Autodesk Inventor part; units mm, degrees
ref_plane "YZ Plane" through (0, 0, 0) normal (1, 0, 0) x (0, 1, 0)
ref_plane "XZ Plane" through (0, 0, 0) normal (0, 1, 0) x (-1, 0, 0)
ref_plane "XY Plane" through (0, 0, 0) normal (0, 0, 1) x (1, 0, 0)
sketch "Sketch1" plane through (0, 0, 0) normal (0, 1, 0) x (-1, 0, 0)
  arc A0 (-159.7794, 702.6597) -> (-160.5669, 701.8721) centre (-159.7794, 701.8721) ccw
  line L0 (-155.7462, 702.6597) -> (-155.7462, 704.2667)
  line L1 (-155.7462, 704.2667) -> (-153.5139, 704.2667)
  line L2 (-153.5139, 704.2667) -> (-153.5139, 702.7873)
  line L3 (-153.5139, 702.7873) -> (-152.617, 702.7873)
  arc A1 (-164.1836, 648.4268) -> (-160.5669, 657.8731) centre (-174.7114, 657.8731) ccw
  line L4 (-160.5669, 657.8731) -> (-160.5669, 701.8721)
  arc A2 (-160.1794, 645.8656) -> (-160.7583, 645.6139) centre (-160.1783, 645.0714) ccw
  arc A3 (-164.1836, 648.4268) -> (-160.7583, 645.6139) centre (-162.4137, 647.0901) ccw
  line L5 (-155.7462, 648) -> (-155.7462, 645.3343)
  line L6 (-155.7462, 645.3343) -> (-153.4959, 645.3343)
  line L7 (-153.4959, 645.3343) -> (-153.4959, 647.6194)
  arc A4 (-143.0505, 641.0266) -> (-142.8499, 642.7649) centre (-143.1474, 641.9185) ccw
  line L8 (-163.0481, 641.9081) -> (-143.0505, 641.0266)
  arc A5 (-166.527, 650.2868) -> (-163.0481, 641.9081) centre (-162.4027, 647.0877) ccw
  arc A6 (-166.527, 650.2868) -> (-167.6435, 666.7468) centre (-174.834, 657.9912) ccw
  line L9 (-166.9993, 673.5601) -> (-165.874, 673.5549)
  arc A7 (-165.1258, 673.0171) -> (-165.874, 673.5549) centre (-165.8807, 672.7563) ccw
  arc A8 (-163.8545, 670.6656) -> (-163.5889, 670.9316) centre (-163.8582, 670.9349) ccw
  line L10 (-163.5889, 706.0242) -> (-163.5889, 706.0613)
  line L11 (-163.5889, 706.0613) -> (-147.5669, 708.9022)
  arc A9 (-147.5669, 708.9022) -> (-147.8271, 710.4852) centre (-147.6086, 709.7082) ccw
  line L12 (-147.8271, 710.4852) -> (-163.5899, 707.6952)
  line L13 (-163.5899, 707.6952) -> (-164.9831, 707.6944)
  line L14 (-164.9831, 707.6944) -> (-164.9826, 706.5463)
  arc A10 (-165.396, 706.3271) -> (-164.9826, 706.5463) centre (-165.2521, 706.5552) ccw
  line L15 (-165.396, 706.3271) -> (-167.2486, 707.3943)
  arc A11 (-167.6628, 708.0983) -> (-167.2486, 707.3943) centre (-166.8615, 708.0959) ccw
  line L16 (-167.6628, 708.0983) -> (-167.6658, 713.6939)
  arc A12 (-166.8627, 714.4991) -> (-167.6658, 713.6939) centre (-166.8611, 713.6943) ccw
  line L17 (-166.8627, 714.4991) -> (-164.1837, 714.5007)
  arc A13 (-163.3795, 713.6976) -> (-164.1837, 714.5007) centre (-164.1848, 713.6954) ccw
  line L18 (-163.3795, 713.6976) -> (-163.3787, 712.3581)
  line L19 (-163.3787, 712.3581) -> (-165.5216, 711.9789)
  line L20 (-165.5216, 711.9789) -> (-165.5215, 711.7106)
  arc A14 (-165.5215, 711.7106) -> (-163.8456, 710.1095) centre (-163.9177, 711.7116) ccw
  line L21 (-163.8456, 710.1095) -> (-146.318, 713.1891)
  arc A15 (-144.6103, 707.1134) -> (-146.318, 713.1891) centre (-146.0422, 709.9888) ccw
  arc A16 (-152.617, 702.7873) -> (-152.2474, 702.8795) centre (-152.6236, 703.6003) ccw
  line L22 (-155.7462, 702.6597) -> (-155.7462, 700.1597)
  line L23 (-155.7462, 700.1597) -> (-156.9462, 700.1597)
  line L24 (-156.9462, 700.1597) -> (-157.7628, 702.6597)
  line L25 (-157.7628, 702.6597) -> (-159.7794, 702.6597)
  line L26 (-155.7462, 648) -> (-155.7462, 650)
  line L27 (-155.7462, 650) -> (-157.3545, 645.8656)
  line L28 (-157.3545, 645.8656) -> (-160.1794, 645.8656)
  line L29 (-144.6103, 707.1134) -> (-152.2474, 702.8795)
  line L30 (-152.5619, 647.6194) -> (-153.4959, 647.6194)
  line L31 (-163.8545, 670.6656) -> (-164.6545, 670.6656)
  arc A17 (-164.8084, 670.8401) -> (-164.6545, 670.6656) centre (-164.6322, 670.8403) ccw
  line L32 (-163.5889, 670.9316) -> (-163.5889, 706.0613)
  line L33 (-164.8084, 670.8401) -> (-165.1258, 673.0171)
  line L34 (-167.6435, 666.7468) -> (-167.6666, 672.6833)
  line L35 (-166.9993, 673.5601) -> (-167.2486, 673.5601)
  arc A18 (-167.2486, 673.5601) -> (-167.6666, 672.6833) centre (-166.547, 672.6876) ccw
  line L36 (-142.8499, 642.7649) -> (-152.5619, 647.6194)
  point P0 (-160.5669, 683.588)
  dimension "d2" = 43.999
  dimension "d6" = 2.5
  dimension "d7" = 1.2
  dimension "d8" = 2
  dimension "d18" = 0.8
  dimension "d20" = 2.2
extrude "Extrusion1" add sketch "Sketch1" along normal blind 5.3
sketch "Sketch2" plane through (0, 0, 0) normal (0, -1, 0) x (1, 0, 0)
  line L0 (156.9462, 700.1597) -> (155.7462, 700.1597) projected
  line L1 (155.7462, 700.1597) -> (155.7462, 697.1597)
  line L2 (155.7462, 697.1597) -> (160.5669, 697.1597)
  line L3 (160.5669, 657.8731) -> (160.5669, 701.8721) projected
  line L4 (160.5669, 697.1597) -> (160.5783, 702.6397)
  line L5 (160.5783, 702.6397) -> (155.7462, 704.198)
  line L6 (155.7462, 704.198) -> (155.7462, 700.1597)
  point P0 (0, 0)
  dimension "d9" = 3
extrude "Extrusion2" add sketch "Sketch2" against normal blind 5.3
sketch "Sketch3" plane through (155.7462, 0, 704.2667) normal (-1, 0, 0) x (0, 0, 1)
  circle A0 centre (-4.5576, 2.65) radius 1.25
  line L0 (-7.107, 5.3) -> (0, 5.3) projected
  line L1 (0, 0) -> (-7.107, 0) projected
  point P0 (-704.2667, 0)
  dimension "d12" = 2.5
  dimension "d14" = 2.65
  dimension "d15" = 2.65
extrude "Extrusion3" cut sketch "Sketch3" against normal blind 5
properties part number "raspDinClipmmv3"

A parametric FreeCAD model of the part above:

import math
import FreeCAD as App
import Part
import Sketcher
Q = App.Units.Quantity

doc = App.newDocument("Part")
body = doc.addObject("PartDesign::Body", "Body")

sketch1 = body.newObject("Sketcher::SketchObject", "Sketch")
sketch1.AttachmentSupport = (doc.getObject("XZ_Plane"), [""])
sketch1.MapMode = "FlatFace"
sketch1.addGeometry([
    Part.ArcOfCircle(Part.Circle(App.Vector(159.7794, 701.8721, 0), App.Vector(0, 0, 1), 0.7876), math.radians(0), math.radians(90)),
    Part.LineSegment(App.Vector(159.7794, 702.6597, 0), App.Vector(157.7628, 702.6597, 0)),
    Part.LineSegment(App.Vector(157.7628, 702.6597, 0), App.Vector(156.9462, 700.1597, 0)),
    Part.LineSegment(App.Vector(156.9462, 700.1597, 0), App.Vector(155.7462, 700.1597, 0)),
    Part.LineSegment(App.Vector(155.7462, 700.1597, 0), App.Vector(155.7462, 704.2667, 0)),
    Part.LineSegment(App.Vector(155.7462, 704.2667, 0), App.Vector(153.5139, 704.2667, 0)),
    Part.LineSegment(App.Vector(153.5139, 704.2667, 0), App.Vector(153.5139, 702.7873, 0)),
    Part.LineSegment(App.Vector(153.5139, 702.7873, 0), App.Vector(152.617, 702.7873, 0)),
    Part.ArcOfCircle(Part.Circle(App.Vector(152.6236, 703.6003, 0), App.Vector(0, 0, 1), 0.813027), math.radians(-117.560961), math.radians(-90.465122)),
    Part.LineSegment(App.Vector(152.2474, 702.8795, 0), App.Vector(144.6103, 707.1134, 0)),
    Part.ArcOfCircle(Part.Circle(App.Vector(146.0422, 709.9888, 0), App.Vector(0, 0, 1), 3.212205), math.radians(85.074453), math.radians(243.527481)),
    Part.LineSegment(App.Vector(146.318, 713.1891, 0), App.Vector(163.8456, 710.1095, 0)),
    Part.ArcOfCircle(Part.Circle(App.Vector(163.9177, 711.7116, 0), App.Vector(0, 0, 1), 1.6038), math.radians(-92.576768), math.radians(-0.035725)),
    Part.LineSegment(App.Vector(165.5215, 711.7106, 0), App.Vector(165.5216, 711.9789, 0)),
    Part.LineSegment(App.Vector(165.5216, 711.9789, 0), App.Vector(163.3787, 712.3581, 0)),
    Part.LineSegment(App.Vector(163.3787, 712.3581, 0), App.Vector(163.3795, 713.6976, 0)),
    Part.ArcOfCircle(Part.Circle(App.Vector(164.1848, 713.6954, 0), App.Vector(0, 0, 1), 0.805303), math.radians(90.078263), math.radians(179.843474)),
    Part.LineSegment(App.Vector(164.1837, 714.5007, 0), App.Vector(166.8627, 714.4991, 0)),
    Part.ArcOfCircle(Part.Circle(App.Vector(166.8611, 713.6943, 0), App.Vector(0, 0, 1), 0.804802), math.radians(-0.028481), math.radians(89.886092)),
    Part.LineSegment(App.Vector(167.6658, 713.6939, 0), App.Vector(167.6628, 708.0983, 0)),
    Part.ArcOfCircle(Part.Circle(App.Vector(166.8615, 708.0959, 0), App.Vector(0, 0, 1), 0.801304), math.radians(-61.112771), math.radians(0.171608)),
    Part.LineSegment(App.Vector(167.2486, 707.3943, 0), App.Vector(165.396, 706.3271, 0)),
    Part.ArcOfCircle(Part.Circle(App.Vector(165.2521, 706.5552, 0), App.Vector(0, 0, 1), 0.269698), math.radians(-178.108545), math.radians(-57.753662)),
    Part.LineSegment(App.Vector(164.9826, 706.5463, 0), App.Vector(164.9831, 707.6944, 0)),
    Part.LineSegment(App.Vector(164.9831, 707.6944, 0), App.Vector(163.5899, 707.6952, 0)),
    Part.LineSegment(App.Vector(163.5899, 707.6952, 0), App.Vector(147.8271, 710.4852, 0)),
    Part.ArcOfCircle(Part.Circle(App.Vector(147.6086, 709.7082, 0), App.Vector(0, 0, 1), 0.807078), math.radians(74.293498), math.radians(267.03833)),
    Part.LineSegment(App.Vector(147.5669, 708.9022, 0), App.Vector(163.5889, 706.0613, 0)),
    Part.LineSegment(App.Vector(163.5889, 706.0613, 0), App.Vector(163.5889, 670.9316, 0)),
    Part.ArcOfCircle(Part.Circle(App.Vector(163.8582, 670.9349, 0), App.Vector(0, 0, 1), 0.269325), math.radians(-179.297933), math.radians(-90.787156)),
    Part.LineSegment(App.Vector(163.8545, 670.6656, 0), App.Vector(164.6545, 670.6656, 0)),
    Part.ArcOfCircle(Part.Circle(App.Vector(164.6322, 670.8403, 0), App.Vector(0, 0, 1), 0.1762), math.radians(-82.725682), math.radians(-0.065035)),
    Part.LineSegment(App.Vector(164.8084, 670.8401, 0), App.Vector(165.1258, 673.0171, 0)),
    Part.ArcOfCircle(Part.Circle(App.Vector(165.8807, 672.7563, 0), App.Vector(0, 0, 1), 0.798681), math.radians(90.480682), math.radians(160.941186)),
    Part.LineSegment(App.Vector(165.874, 673.5549, 0), App.Vector(166.9993, 673.5601, 0)),
    Part.LineSegment(App.Vector(166.9993, 673.5601, 0), App.Vector(167.2486, 673.5601, 0)),
    Part.ArcOfCircle(Part.Circle(App.Vector(166.547, 672.6876, 0), App.Vector(0, 0, 1), 1.119598), math.radians(-0.220052), math.radians(51.196331)),
    Part.LineSegment(App.Vector(167.6666, 672.6833, 0), App.Vector(167.6435, 666.7468, 0)),
    Part.ArcOfCircle(Part.Circle(App.Vector(174.834, 657.9912, 0), App.Vector(0, 0, 1), 11.329785), math.radians(129.394408), math.radians(222.844651)),
    Part.ArcOfCircle(Part.Circle(App.Vector(162.4027, 647.0877, 0), App.Vector(0, 0, 1), 5.219587), math.radians(-82.897313), math.radians(37.799696)),
    Part.LineSegment(App.Vector(163.0481, 641.9081, 0), App.Vector(143.0505, 641.0266, 0)),
    Part.ArcOfCircle(Part.Circle(App.Vector(143.1474, 641.9185, 0), App.Vector(0, 0, 1), 0.897148), math.radians(109.365996), math.radians(263.799451)),
    Part.LineSegment(App.Vector(142.8499, 642.7649, 0), App.Vector(152.5619, 647.6194, 0)),
    Part.LineSegment(App.Vector(152.5619, 647.6194, 0), App.Vector(153.4959, 647.6194, 0)),
    Part.LineSegment(App.Vector(153.4959, 647.6194, 0), App.Vector(153.4959, 645.3343, 0)),
    Part.LineSegment(App.Vector(153.4959, 645.3343, 0), App.Vector(155.7462, 645.3343, 0)),
    Part.LineSegment(App.Vector(155.7462, 645.3343, 0), App.Vector(155.7462, 650, 0)),
    Part.LineSegment(App.Vector(155.7462, 650, 0), App.Vector(157.3545, 645.8656, 0)),
    Part.LineSegment(App.Vector(157.3545, 645.8656, 0), App.Vector(160.1794, 645.8656, 0)),
    Part.ArcOfCircle(Part.Circle(App.Vector(160.1783, 645.0714, 0), App.Vector(0, 0, 1), 0.794201), math.radians(43.086599), math.radians(89.920643)),
    Part.ArcOfCircle(Part.Circle(App.Vector(162.4137, 647.0901, 0), App.Vector(0, 0, 1), 2.217952), math.radians(-138.275073), math.radians(37.061577)),
    Part.ArcOfCircle(Part.Circle(App.Vector(174.7114, 657.8731, 0), App.Vector(0, 0, 1), 14.14451), math.radians(180), math.radians(221.90074)),
    Part.LineSegment(App.Vector(160.5669, 657.8731, 0), App.Vector(160.5669, 701.8721, 0)),
], False)
sketch1.addConstraint([
    Sketcher.Constraint("Coincident", 0, 2, 1, 1),
    Sketcher.Constraint("Coincident", 1, 2, 2, 1),
    Sketcher.Constraint("Coincident", 2, 2, 3, 1),
    Sketcher.Constraint("Coincident", 3, 2, 4, 1),
    Sketcher.Constraint("Coincident", 4, 2, 5, 1),
    Sketcher.Constraint("Coincident", 5, 2, 6, 1),
    Sketcher.Constraint("Coincident", 6, 2, 7, 1),
    Sketcher.Constraint("Coincident", 7, 2, 8, 2),
    Sketcher.Constraint("Coincident", 8, 1, 9, 1),
    Sketcher.Constraint("Coincident", 9, 2, 10, 2),
    Sketcher.Constraint("Coincident", 10, 1, 11, 1),
    Sketcher.Constraint("Coincident", 11, 2, 12, 1),
    Sketcher.Constraint("Coincident", 12, 2, 13, 1),
    Sketcher.Constraint("Coincident", 13, 2, 14, 1),
    Sketcher.Constraint("Coincident", 14, 2, 15, 1),
    Sketcher.Constraint("Coincident", 15, 2, 16, 2),
    Sketcher.Constraint("Coincident", 16, 1, 17, 1),
    Sketcher.Constraint("Coincident", 17, 2, 18, 2),
    Sketcher.Constraint("Coincident", 18, 1, 19, 1),
    Sketcher.Constraint("Coincident", 19, 2, 20, 2),
    Sketcher.Constraint("Coincident", 20, 1, 21, 1),
    Sketcher.Constraint("Coincident", 21, 2, 22, 2),
    Sketcher.Constraint("Coincident", 22, 1, 23, 1),
    Sketcher.Constraint("Coincident", 23, 2, 24, 1),
    Sketcher.Constraint("Coincident", 24, 2, 25, 1),
    Sketcher.Constraint("Coincident", 25, 2, 26, 1),
    Sketcher.Constraint("Coincident", 26, 2, 27, 1),
    Sketcher.Constraint("Coincident", 27, 2, 28, 1),
    Sketcher.Constraint("Coincident", 28, 2, 29, 1),
    Sketcher.Constraint("Coincident", 29, 2, 30, 1),
    Sketcher.Constraint("Coincident", 30, 2, 31, 1),
    Sketcher.Constraint("Coincident", 31, 2, 32, 1),
    Sketcher.Constraint("Coincident", 32, 2, 33, 2),
    Sketcher.Constraint("Coincident", 33, 1, 34, 1),
    Sketcher.Constraint("Coincident", 34, 2, 35, 1),
    Sketcher.Constraint("Coincident", 35, 2, 36, 2),
    Sketcher.Constraint("Coincident", 36, 1, 37, 1),
    Sketcher.Constraint("Coincident", 37, 2, 38, 1),
    Sketcher.Constraint("Coincident", 38, 2, 39, 2),
    Sketcher.Constraint("Coincident", 39, 1, 40, 1),
    Sketcher.Constraint("Coincident", 40, 2, 41, 2),
    Sketcher.Constraint("Coincident", 41, 1, 42, 1),
    Sketcher.Constraint("Coincident", 42, 2, 43, 1),
    Sketcher.Constraint("Coincident", 43, 2, 44, 1),
    Sketcher.Constraint("Coincident", 44, 2, 45, 1),
    Sketcher.Constraint("Coincident", 45, 2, 46, 1),
    Sketcher.Constraint("Coincident", 46, 2, 47, 1),
    Sketcher.Constraint("Coincident", 47, 2, 48, 1),
    Sketcher.Constraint("Coincident", 48, 2, 49, 2),
    Sketcher.Constraint("Coincident", 49, 1, 50, 1),
    Sketcher.Constraint("Coincident", 50, 2, 51, 2),
    Sketcher.Constraint("Coincident", 51, 1, 52, 1),
    Sketcher.Constraint("Coincident", 52, 2, 0, 1),
    Sketcher.Constraint("Horizontal", 1),
    Sketcher.Constraint("Horizontal", 3),
    Sketcher.Constraint("Vertical", 4),
    Sketcher.Constraint("Horizontal", 5),
    Sketcher.Constraint("Vertical", 6),
    Sketcher.Constraint("Horizontal", 7),
    Sketcher.Constraint("Vertical", 13),
    Sketcher.Constraint("Vertical", 28),
    Sketcher.Constraint("Horizontal", 30),
    Sketcher.Constraint("Horizontal", 35),
    Sketcher.Constraint("Horizontal", 43),
    Sketcher.Constraint("Vertical", 44),
    Sketcher.Constraint("Horizontal", 45),
    Sketcher.Constraint("Vertical", 46),
    Sketcher.Constraint("Horizontal", 48),
    Sketcher.Constraint("Vertical", 52),
    Sketcher.Constraint("DistanceX", 3, 2, 3, 1, Q("1.2 mm")),
    Sketcher.Constraint("DistanceX", 30, 1, 30, 2, Q("0.8 mm")),
    Sketcher.Constraint("Distance", 32, Q("2.2 mm")),
    Sketcher.Constraint("DistanceY", 52, 1, 52, 2, Q("43.999 mm")),
    Sketcher.Constraint("DistanceY", -1, 1, 46, 2, Q("650 mm")),
    Sketcher.Constraint("Radius", 8, Q("0.813 mm")),
    Sketcher.Constraint("Radius", 26, Q("0.807 mm")),
    Sketcher.Constraint("Radius", 50, Q("2.218 mm")),
    Sketcher.Constraint("Radius", 0, Q("0.7876 mm")),
    Sketcher.Constraint("Radius", 10, Q("3.2122 mm")),
    Sketcher.Constraint("Radius", 12, Q("1.6038 mm")),
    Sketcher.Constraint("Radius", 16, Q("0.8053 mm")),
    Sketcher.Constraint("Radius", 18, Q("0.8048 mm")),
    Sketcher.Constraint("Radius", 20, Q("0.8013 mm")),
    Sketcher.Constraint("Radius", 22, Q("0.2697 mm")),
    Sketcher.Constraint("Radius", 29, Q("0.2693 mm")),
    Sketcher.Constraint("Radius", 31, Q("0.1762 mm")),
    Sketcher.Constraint("Radius", 33, Q("0.7987 mm")),
    Sketcher.Constraint("Radius", 36, Q("1.1196 mm")),
    Sketcher.Constraint("Radius", 38, Q("11.3298 mm")),
    Sketcher.Constraint("Radius", 39, Q("5.2196 mm")),
    Sketcher.Constraint("Radius", 41, Q("0.8971 mm")),
    Sketcher.Constraint("Radius", 49, Q("0.7942 mm")),
    Sketcher.Constraint("Radius", 51, Q("14.1445 mm")),
    Sketcher.Constraint("Distance", 2, Q("2.63 mm")),
    Sketcher.Constraint("DistanceX", 7, 2, 7, 1, Q("0.897 mm")),
    Sketcher.Constraint("DistanceX", 43, 1, 43, 2, Q("0.934 mm")),
    Sketcher.Constraint("DistanceX", 48, 1, 48, 2, Q("2.825 mm")),
    Sketcher.Constraint("DistanceY", 4, 1, 4, 2, Q("4.107 mm")),
    Sketcher.Constraint("DistanceY", 44, 2, 44, 1, Q("2.285 mm")),
    Sketcher.Constraint("DistanceY", -1, 1, 50, 3, Q("647.09 mm")),
    Sketcher.Constraint("DistanceX", -1, 1, 24, 2, Q("163.59 mm")),
    Sketcher.Constraint("DistanceY", -1, 1, 31, 2, Q("670.84 mm")),
    Sketcher.Constraint("DistanceY", -1, 1, 34, 2, Q("673.56 mm")),
    Sketcher.Constraint("DistanceX", -1, 1, 41, 1, Q("142.85 mm")),
    Sketcher.Constraint("Distance", 11, Q("17.796 mm")),
    Sketcher.Constraint("Distance", 17, Q("2.679 mm")),
    Sketcher.Constraint("Distance", 21, Q("2.138 mm")),
    Sketcher.Constraint("Distance", 23, Q("1.148 mm")),
    Sketcher.Constraint("Distance", 27, Q("16.272 mm")),
    Sketcher.Constraint("Distance", 40, Q("20.017 mm")),
    Sketcher.Constraint("DistanceX", 1, 2, 1, 1, Q("2.0166 mm")),
    Sketcher.Constraint("DistanceX", 5, 2, 5, 1, Q("2.2323 mm")),
    Sketcher.Constraint("DistanceX", 35, 1, 35, 2, Q("0.2493 mm")),
    Sketcher.Constraint("DistanceX", 45, 1, 45, 2, Q("2.2503 mm")),
    Sketcher.Constraint("DistanceY", 6, 2, 6, 1, Q("1.4794 mm")),
    Sketcher.Constraint("DistanceY", 13, 1, 13, 2, Q("0.2683 mm")),
    Sketcher.Constraint("DistanceY", 28, 2, 28, 1, Q("35.1297 mm")),
    Sketcher.Constraint("DistanceY", 46, 1, 46, 2, Q("4.6657 mm")),
    Sketcher.Constraint("DistanceY", -1, 1, 0, 3, Q("701.872 mm")),
    Sketcher.Constraint("DistanceX", -1, 1, 18, 3, Q("166.861 mm")),
    Sketcher.Constraint("DistanceY", -1, 1, 20, 3, Q("708.096 mm")),
    Sketcher.Constraint("DistanceX", -1, 1, 22, 3, Q("165.252 mm")),
    Sketcher.Constraint("DistanceY", -1, 1, 29, 3, Q("670.935 mm")),
    Sketcher.Constraint("DistanceX", -1, 1, 36, 3, Q("166.547 mm")),
    Sketcher.Constraint("DistanceX", -1, 1, 38, 3, Q("174.834 mm")),
    Sketcher.Constraint("DistanceY", -1, 1, 51, 3, Q("657.873 mm")),
    Sketcher.Constraint("DistanceX", -1, 1, 5, 2, Q("153.514 mm")),
    Sketcher.Constraint("DistanceX", -1, 1, 10, 1, Q("146.318 mm")),
    Sketcher.Constraint("DistanceY", -1, 1, 13, 2, Q("711.979 mm")),
    Sketcher.Constraint("DistanceY", -1, 1, 14, 2, Q("712.358 mm")),
    Sketcher.Constraint("DistanceY", -1, 1, 17, 2, Q("714.499 mm")),
    Sketcher.Constraint("DistanceY", -1, 1, 18, 1, Q("713.694 mm")),
    Sketcher.Constraint("DistanceX", -1, 1, 21, 2, Q("165.396 mm")),
    Sketcher.Constraint("DistanceY", -1, 1, 21, 2, Q("706.327 mm")),
    Sketcher.Constraint("DistanceX", -1, 1, 23, 2, Q("164.983 mm")),
    Sketcher.Constraint("DistanceX", -1, 1, 25, 2, Q("147.827 mm")),
    Sketcher.Constraint("DistanceX", -1, 1, 26, 2, Q("147.567 mm")),
    Sketcher.Constraint("DistanceX", -1, 1, 27, 2, Q("163.589 mm")),
    Sketcher.Constraint("DistanceY", -1, 1, 32, 2, Q("673.017 mm")),
    Sketcher.Constraint("DistanceX", -1, 1, 33, 1, Q("165.874 mm")),
    Sketcher.Constraint("DistanceY", -1, 1, 33, 1, Q("673.555 mm")),
    Sketcher.Constraint("DistanceX", -1, 1, 38, 2, Q("166.527 mm")),
    Sketcher.Constraint("DistanceX", -1, 1, 39, 1, Q("163.048 mm")),
    Sketcher.Constraint("DistanceY", -1, 1, 41, 1, Q("642.765 mm")),
    Sketcher.Constraint("DistanceX", -1, 1, 42, 2, Q("152.562 mm")),
    Sketcher.Constraint("DistanceY", -1, 1, 49, 1, Q("645.614 mm")),
    Sketcher.Constraint("DistanceX", -1, 1, 51, 1, Q("160.567 mm")),
    Sketcher.Constraint("DistanceY", -1, 1, 51, 1, Q("657.873 mm")),
    Sketcher.Constraint("Distance", 9, Q("8.7322 mm")),
    Sketcher.Constraint("Distance", 14, Q("2.1762 mm")),
    Sketcher.Constraint("Distance", 15, Q("1.3395 mm")),
    Sketcher.Constraint("Distance", 19, Q("5.5956 mm")),
    Sketcher.Constraint("Distance", 25, Q("16.0078 mm")),
    Sketcher.Constraint("Distance", 34, Q("1.1253 mm")),
    Sketcher.Constraint("Distance", 37, Q("5.9365 mm")),
    Sketcher.Constraint("Distance", 47, Q("4.4362 mm")),
    Sketcher.Constraint("DistanceX", -1, 1, 8, 3, Q("152.6236 mm")),
    Sketcher.Constraint("DistanceY", -1, 1, 8, 3, Q("703.6003 mm")),
    Sketcher.Constraint("DistanceX", -1, 1, 10, 3, Q("146.0422 mm")),
    Sketcher.Constraint("DistanceY", -1, 1, 10, 3, Q("709.9888 mm")),
    Sketcher.Constraint("DistanceX", -1, 1, 12, 3, Q("163.9177 mm")),
    Sketcher.Constraint("DistanceY", -1, 1, 12, 3, Q("711.7116 mm")),
    Sketcher.Constraint("DistanceX", -1, 1, 16, 3, Q("164.1848 mm")),
    Sketcher.Constraint("DistanceY", -1, 1, 16, 3, Q("713.6954 mm")),
    Sketcher.Constraint("DistanceX", -1, 1, 20, 3, Q("166.8615 mm")),
    Sketcher.Constraint("DistanceX", -1, 1, 26, 3, Q("147.6086 mm")),
    Sketcher.Constraint("DistanceY", -1, 1, 26, 3, Q("709.7082 mm")),
    Sketcher.Constraint("DistanceX", -1, 1, 31, 3, Q("164.6322 mm")),
    Sketcher.Constraint("DistanceY", -1, 1, 31, 3, Q("670.8403 mm")),
    Sketcher.Constraint("DistanceY", -1, 1, 38, 3, Q("657.9912 mm")),
    Sketcher.Constraint("DistanceX", -1, 1, 39, 3, Q("162.4027 mm")),
    Sketcher.Constraint("DistanceX", -1, 1, 41, 3, Q("143.1474 mm")),
    Sketcher.Constraint("DistanceX", -1, 1, 49, 3, Q("160.1783 mm")),
    Sketcher.Constraint("DistanceY", -1, 1, 49, 3, Q("645.0714 mm")),
    Sketcher.Constraint("DistanceX", -1, 1, 8, 1, Q("152.2474 mm")),
    Sketcher.Constraint("DistanceX", -1, 1, 16, 1, Q("164.1837 mm")),
    Sketcher.Constraint("DistanceX", -1, 1, 22, 1, Q("164.9825 mm")),
    Sketcher.Constraint("DistanceY", -1, 1, 36, 1, Q("672.6833 mm")),
])
pad1 = body.newObject("PartDesign::Pad", "Pad")
pad1.Profile = sketch1
pad1.Length = 5.3
pad1.Reversed = True

sketch2 = body.newObject("Sketcher::SketchObject", "Sketch001")
sketch2.AttachmentSupport = (doc.getObject("XZ_Plane"), [""])
sketch2.MapMode = "FlatFace"
sketch2.addGeometry([
    Part.LineSegment(App.Vector(155.7, 704.2, 0), App.Vector(155.7, 697.2, 0)),
    Part.LineSegment(App.Vector(155.7, 697.2, 0), App.Vector(160.6, 697.2, 0)),
    Part.LineSegment(App.Vector(160.6, 697.2, 0), App.Vector(160.6, 702.6, 0)),
    Part.LineSegment(App.Vector(160.6, 702.6, 0), App.Vector(155.7, 704.2, 0)),
], False)
sketch2.addConstraint([
    Sketcher.Constraint("Coincident", 0, 2, 1, 1),
    Sketcher.Constraint("Coincident", 1, 2, 2, 1),
    Sketcher.Constraint("Coincident", 2, 2, 3, 1),
    Sketcher.Constraint("Coincident", 3, 2, 0, 1),
    Sketcher.Constraint("Vertical", 0),
    Sketcher.Constraint("Horizontal", 1),
    Sketcher.Constraint("Angle", 2, Q("89.8808 deg")),
    Sketcher.Constraint("Distance", 2, Q("5.48 mm")),
    Sketcher.Constraint("DistanceX", 1, 1, 1, 2, Q("4.8207 mm")),
    Sketcher.Constraint("DistanceY", 0, 2, 0, 1, Q("7.0383 mm")),
    Sketcher.Constraint("DistanceX", -1, 1, 1, 2, Q("160.567 mm")),
    Sketcher.Constraint("DistanceY", -1, 1, 3, 2, Q("704.198 mm")),
])
pad2 = body.newObject("PartDesign::Pad", "Pad001")
pad2.Profile = sketch2
pad2.Length = 5.3
pad2.Reversed = True

sketch3 = body.newObject("Sketcher::SketchObject", "Sketch002")
sketch3.AttachmentSupport = (doc.getObject("YZ_Plane"), [""])
sketch3.MapMode = "FlatFace"
sketch3.AttachmentOffset = App.Placement(App.Vector(0, 0, 155.7462), App.Rotation())
sketch3.addGeometry(Part.Circle(App.Vector(2.6, 699.7, 0), App.Vector(0, 0, 1), 1.2), False)
sketch3.addConstraint([
    Sketcher.Constraint("Diameter", 0, Q("2.5 mm")),
    Sketcher.Constraint("DistanceX", -1, 1, 0, 3, Q("2.65 mm")),
    Sketcher.Constraint("DistanceY", -1, 1, 0, 3, Q("699.709 mm")),
])
pocket1 = body.newObject("PartDesign::Pocket", "Pocket")
pocket1.Profile = sketch3
pocket1.Length = 5
pocket1.Reversed = True

doc.recompute()
